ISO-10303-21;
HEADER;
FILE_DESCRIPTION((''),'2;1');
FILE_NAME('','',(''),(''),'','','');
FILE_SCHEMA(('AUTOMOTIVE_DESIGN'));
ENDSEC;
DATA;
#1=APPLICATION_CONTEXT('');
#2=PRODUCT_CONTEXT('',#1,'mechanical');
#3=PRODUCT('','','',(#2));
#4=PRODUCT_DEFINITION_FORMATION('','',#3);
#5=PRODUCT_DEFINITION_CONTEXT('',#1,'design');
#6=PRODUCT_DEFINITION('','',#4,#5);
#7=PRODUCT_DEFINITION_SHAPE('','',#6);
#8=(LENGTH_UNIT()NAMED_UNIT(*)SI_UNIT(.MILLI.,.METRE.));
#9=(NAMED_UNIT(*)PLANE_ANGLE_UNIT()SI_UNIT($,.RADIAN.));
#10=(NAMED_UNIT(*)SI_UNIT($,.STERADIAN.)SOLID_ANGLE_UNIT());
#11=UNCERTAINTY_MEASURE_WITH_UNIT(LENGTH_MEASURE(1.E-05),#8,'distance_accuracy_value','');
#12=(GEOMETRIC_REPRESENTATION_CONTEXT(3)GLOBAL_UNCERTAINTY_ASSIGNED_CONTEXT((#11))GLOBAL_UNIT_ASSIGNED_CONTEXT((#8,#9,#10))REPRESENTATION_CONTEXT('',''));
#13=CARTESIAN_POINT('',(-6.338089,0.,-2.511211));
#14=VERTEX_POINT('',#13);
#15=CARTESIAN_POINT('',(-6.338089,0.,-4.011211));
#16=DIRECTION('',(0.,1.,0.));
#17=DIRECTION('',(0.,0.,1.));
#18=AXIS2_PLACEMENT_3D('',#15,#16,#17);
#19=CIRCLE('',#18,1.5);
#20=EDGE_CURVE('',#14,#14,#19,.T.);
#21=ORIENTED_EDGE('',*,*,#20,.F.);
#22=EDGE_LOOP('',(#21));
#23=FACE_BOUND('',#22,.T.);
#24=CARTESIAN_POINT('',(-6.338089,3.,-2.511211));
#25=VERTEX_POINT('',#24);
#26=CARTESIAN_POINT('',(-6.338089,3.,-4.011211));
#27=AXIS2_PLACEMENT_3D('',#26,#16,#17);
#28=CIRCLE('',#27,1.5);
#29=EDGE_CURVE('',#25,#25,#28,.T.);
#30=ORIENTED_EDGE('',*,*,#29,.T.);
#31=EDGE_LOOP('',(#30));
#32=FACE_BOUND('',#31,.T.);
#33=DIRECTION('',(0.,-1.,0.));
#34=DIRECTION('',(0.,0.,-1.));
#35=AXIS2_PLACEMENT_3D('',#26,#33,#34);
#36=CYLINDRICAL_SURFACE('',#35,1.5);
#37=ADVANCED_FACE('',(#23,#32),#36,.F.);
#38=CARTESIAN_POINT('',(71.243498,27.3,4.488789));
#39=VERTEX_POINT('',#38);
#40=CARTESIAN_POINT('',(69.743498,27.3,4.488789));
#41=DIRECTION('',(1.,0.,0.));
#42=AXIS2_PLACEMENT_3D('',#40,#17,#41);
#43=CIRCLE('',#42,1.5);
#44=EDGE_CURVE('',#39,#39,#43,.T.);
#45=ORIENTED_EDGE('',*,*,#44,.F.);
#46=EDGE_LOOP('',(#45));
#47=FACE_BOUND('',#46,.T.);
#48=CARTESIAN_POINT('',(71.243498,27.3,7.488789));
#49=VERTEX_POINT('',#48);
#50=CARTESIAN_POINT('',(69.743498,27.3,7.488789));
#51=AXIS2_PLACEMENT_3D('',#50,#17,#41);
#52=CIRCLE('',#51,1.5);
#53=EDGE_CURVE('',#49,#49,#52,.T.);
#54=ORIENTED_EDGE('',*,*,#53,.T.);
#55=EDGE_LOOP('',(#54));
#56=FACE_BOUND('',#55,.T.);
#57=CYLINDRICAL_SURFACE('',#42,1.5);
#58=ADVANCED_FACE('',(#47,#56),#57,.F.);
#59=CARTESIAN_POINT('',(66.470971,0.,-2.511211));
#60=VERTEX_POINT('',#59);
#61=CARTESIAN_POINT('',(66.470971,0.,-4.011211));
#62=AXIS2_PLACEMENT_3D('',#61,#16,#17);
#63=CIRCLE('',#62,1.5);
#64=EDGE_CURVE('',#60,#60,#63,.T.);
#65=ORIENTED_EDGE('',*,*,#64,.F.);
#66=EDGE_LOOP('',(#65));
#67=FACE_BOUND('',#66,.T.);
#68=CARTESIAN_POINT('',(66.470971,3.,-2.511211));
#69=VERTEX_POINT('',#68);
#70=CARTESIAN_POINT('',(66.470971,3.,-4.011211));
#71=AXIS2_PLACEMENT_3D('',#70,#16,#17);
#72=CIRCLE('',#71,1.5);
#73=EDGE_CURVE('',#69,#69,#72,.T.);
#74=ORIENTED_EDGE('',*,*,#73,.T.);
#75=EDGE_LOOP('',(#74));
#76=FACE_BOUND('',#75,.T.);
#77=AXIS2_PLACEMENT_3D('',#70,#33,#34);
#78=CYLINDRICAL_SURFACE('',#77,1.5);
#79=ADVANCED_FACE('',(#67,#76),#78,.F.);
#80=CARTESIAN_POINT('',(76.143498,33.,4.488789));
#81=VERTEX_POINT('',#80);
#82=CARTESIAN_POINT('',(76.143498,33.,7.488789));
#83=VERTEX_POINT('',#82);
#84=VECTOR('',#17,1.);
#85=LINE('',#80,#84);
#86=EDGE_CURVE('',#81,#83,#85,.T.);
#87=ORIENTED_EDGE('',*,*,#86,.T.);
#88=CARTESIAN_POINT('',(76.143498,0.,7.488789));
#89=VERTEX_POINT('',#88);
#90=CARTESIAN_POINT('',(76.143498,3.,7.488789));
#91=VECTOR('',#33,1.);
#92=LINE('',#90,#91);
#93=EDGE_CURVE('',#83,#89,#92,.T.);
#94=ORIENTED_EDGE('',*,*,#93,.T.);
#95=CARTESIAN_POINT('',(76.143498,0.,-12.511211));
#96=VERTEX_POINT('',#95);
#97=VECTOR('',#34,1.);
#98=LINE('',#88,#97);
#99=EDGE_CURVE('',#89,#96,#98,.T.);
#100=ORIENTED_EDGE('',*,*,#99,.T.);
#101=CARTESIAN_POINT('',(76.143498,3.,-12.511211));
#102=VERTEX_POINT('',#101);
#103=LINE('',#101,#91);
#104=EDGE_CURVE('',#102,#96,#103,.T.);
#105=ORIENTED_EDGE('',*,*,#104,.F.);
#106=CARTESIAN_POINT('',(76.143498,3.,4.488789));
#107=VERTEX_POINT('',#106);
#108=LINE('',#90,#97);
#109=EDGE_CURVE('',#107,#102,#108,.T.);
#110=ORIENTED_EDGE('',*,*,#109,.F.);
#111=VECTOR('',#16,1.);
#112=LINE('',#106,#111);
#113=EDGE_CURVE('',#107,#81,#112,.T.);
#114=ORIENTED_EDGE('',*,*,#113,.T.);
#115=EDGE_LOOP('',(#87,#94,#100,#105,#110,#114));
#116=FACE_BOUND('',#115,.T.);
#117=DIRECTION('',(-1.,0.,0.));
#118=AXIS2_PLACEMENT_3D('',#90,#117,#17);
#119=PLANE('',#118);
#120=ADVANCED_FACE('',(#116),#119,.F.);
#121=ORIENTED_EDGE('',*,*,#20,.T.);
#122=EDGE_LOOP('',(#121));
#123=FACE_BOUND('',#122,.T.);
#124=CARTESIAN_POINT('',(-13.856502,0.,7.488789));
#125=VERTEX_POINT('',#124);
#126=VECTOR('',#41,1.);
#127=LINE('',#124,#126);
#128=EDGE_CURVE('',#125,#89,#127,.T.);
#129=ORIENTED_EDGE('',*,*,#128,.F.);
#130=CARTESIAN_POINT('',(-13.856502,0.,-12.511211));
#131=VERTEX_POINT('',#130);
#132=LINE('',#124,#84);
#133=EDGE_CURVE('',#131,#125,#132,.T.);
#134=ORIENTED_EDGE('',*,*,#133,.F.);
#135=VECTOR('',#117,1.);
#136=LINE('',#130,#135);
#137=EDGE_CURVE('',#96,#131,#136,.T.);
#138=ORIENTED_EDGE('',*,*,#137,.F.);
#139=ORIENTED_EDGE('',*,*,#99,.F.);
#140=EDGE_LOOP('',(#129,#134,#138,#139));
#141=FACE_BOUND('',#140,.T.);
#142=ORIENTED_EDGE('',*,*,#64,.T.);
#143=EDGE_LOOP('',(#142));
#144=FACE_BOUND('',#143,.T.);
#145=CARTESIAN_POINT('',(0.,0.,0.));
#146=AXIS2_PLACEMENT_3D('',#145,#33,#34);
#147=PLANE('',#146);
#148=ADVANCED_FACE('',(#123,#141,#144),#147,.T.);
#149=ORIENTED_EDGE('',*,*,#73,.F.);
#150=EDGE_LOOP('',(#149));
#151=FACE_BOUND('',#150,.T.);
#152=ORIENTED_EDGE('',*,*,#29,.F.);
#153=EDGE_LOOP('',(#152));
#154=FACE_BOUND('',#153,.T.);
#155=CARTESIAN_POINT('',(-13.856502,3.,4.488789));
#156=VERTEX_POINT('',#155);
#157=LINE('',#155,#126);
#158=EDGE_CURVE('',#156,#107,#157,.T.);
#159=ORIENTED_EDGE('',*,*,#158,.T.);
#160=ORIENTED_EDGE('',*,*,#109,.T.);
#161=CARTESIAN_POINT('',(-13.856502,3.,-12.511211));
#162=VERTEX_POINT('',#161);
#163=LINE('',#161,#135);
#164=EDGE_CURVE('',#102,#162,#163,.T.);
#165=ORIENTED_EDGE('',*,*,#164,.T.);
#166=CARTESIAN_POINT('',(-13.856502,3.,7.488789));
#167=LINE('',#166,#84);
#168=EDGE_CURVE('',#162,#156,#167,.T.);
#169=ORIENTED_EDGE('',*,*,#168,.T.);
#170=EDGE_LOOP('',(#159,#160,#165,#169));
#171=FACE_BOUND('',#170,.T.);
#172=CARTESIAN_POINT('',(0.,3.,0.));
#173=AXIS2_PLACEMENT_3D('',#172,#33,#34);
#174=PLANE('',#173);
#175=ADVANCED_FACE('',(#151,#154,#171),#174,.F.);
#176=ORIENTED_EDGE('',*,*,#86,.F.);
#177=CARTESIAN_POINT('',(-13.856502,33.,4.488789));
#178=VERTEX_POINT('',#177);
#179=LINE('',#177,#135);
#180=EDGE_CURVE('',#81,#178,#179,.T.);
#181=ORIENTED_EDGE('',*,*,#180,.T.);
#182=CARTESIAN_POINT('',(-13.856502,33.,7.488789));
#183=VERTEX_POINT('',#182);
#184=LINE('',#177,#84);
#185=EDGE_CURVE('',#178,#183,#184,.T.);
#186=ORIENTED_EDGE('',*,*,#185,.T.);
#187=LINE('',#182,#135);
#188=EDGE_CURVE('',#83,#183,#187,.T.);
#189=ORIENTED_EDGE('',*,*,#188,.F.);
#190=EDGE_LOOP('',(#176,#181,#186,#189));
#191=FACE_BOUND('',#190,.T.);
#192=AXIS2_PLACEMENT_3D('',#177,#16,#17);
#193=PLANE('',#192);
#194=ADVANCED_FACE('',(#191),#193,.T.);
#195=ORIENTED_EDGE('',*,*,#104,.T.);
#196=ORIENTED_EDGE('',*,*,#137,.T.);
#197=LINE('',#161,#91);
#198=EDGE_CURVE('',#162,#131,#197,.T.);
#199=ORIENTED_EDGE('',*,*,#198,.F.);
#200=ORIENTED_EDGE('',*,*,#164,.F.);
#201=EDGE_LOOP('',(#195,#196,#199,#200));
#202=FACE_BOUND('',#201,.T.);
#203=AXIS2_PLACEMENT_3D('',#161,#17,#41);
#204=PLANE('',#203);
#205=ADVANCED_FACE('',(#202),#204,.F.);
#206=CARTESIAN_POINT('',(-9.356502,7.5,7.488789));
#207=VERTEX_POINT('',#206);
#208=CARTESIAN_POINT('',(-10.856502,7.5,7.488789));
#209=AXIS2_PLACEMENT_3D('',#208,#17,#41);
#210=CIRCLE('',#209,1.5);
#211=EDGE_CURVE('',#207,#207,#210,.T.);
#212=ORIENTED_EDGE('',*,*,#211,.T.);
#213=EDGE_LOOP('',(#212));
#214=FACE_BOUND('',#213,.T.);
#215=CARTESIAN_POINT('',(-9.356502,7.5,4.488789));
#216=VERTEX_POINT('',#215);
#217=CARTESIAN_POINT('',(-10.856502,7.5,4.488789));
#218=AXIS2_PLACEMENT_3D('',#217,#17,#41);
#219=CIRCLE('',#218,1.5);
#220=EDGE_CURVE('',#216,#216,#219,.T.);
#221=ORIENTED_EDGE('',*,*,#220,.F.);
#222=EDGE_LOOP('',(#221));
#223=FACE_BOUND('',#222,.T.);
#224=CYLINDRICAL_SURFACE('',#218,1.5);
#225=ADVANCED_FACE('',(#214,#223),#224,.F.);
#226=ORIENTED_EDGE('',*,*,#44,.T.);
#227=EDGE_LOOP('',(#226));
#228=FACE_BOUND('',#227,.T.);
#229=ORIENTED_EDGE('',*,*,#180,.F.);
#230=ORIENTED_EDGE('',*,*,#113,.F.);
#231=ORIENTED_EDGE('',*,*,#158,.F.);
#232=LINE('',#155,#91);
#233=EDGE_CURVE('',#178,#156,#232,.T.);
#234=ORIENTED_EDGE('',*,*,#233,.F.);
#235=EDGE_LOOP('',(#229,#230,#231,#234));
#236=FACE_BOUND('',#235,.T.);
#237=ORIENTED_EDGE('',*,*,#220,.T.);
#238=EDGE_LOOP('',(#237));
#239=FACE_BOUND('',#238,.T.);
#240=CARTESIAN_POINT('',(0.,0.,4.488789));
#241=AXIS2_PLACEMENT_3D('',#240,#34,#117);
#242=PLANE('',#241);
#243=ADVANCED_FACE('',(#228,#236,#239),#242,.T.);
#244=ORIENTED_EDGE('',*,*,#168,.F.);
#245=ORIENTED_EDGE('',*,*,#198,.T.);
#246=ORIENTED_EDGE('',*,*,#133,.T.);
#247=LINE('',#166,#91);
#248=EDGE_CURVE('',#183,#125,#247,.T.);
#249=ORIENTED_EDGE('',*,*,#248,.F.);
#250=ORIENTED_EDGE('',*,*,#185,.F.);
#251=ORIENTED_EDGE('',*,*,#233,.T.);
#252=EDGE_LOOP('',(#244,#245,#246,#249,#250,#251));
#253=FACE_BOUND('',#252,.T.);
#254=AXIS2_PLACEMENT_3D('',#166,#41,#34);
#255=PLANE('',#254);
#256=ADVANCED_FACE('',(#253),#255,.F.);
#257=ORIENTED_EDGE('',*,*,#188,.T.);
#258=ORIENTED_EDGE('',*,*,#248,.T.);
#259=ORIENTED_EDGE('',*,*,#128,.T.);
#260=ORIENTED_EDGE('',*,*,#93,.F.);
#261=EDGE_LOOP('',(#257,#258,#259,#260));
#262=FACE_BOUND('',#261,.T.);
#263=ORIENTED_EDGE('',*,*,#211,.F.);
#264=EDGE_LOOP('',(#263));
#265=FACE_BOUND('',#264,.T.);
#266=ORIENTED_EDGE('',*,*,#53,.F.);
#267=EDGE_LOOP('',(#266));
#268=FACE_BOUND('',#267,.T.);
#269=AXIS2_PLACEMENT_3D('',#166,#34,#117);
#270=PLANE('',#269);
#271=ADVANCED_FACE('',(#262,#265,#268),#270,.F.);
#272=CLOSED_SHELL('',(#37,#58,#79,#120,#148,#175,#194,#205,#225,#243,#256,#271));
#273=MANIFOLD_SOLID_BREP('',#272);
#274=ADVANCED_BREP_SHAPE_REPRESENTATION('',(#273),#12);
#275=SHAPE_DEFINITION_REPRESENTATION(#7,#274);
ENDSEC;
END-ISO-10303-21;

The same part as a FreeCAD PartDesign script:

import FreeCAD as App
import Part
import Sketcher
Q = App.Units.Quantity

doc = App.newDocument("Part")
params = doc.addObject("Spreadsheet::Sheet", "Params")
for row, (alias, value) in enumerate([
    ("sketch1_diameter", "3 mm"),
    ("sketch1_width", "90 mm"),
    ("sketch1_height", "20 mm"),
    ("pad1_length", "3 mm"),
    ("sketch2_diameter", "3 mm"),
    ("sketch2_width", "90 mm"),
    ("sketch2_height", "30 mm"),
    ("pad2_length", "3 mm"),
], start=1):
    params.set(f"A{row}", alias)
    params.set(f"B{row}", "=" + value)
    params.setAlias(f"B{row}", alias)

body = doc.addObject("PartDesign::Body", "Body")

sketch1 = doc.addObject("Sketcher::SketchObject", "Sketch")
body.addObject(sketch1)
sketch1.AttachmentSupport = (doc.XZ_Plane, [""])
sketch1.MapMode = "FlatFace"
sketch1.addGeometry(Part.LineSegment(App.Vector(-13.9, -12.5, 0), App.Vector(-13.9, 7.5, 0)), False)
sketch1.addGeometry(Part.LineSegment(App.Vector(-13.9, 7.5, 0), App.Vector(76.1, 7.5, 0)), False)
sketch1.addGeometry(Part.LineSegment(App.Vector(76.1, 7.5, 0), App.Vector(76.1, -12.5, 0)), False)
sketch1.addGeometry(Part.LineSegment(App.Vector(76.1, -12.5, 0), App.Vector(-13.9, -12.5, 0)), False)
sketch1.addGeometry(Part.Circle(App.Vector(-6.3, -4, 0), App.Vector(0, 0, 1), 1.5), False)
sketch1.addGeometry(Part.Circle(App.Vector(66.5, -4, 0), App.Vector(0, 0, 1), 1.5), False)
sketch1.addConstraint(Sketcher.Constraint("Coincident", 0, 2, 1, 1))
sketch1.addConstraint(Sketcher.Constraint("Coincident", 1, 2, 2, 1))
sketch1.addConstraint(Sketcher.Constraint("Coincident", 2, 2, 3, 1))
sketch1.addConstraint(Sketcher.Constraint("Coincident", 3, 2, 0, 1))
sketch1.addConstraint(Sketcher.Constraint("Vertical", 0))
sketch1.addConstraint(Sketcher.Constraint("Horizontal", 1))
sketch1.addConstraint(Sketcher.Constraint("Vertical", 2))
sketch1.addConstraint(Sketcher.Constraint("Horizontal", 3))
sketch1.addConstraint(Sketcher.Constraint("Equal", 4, 5))
sketch1.addConstraint(Sketcher.Constraint("Horizontal", 4, 3, 5, 3))
sketch1.addConstraint(Sketcher.Constraint("Diameter", 4, Q("3 mm")))
sketch1.addConstraint(Sketcher.Constraint("DistanceX", 1, 1, 1, 2, Q("90 mm")))
sketch1.addConstraint(Sketcher.Constraint("DistanceY", 0, 1, 0, 2, Q("20 mm")))
sketch1.addConstraint(Sketcher.Constraint("DistanceY", 4, 3, 0, 2, Q("11.5 mm")))
sketch1.addConstraint(Sketcher.Constraint("DistanceX", 4, 3, -1, 1, Q("6.338089 mm")))
sketch1.addConstraint(Sketcher.Constraint("DistanceY", 4, 3, -1, 1, Q("4.011211 mm")))
sketch1.addConstraint(Sketcher.Constraint("DistanceX", -1, 1, 5, 3, Q("66.470971 mm")))
sketch1.addConstraint(Sketcher.Constraint("DistanceX", 0, 2, -1, 1, Q("13.856502 mm")))
sketch1.setExpression("Constraints[10]", "Params.sketch1_diameter")
sketch1.setExpression("Constraints[11]", "Params.sketch1_width")
sketch1.setExpression("Constraints[12]", "Params.sketch1_height")
pad1 = doc.addObject("PartDesign::Pad", "Pad")
body.addObject(pad1)
pad1.Profile = sketch1
pad1.setExpression("Length", "Params.pad1_length")
pad1.Reversed = True

sketch2 = doc.addObject("Sketcher::SketchObject", "Sketch001")
body.addObject(sketch2)
sketch2.AttachmentSupport = (doc.XY_Plane, [""])
sketch2.MapMode = "FlatFace"
sketch2.AttachmentOffset = App.Placement(App.Vector(0, 0, 7.488789), App.Rotation())
sketch2.addGeometry(Part.LineSegment(App.Vector(-13.9, 33, 0), App.Vector(-13.9, 3, 0)), False)
sketch2.addGeometry(Part.LineSegment(App.Vector(-13.9, 3, 0), App.Vector(76.1, 3, 0)), False)
sketch2.addGeometry(Part.LineSegment(App.Vector(76.1, 3, 0), App.Vector(76.1, 33, 0)), False)
sketch2.addGeometry(Part.LineSegment(App.Vector(76.1, 33, 0), App.Vector(-13.9, 33, 0)), False)
sketch2.addGeometry(Part.Circle(App.Vector(-10.9, 7.5, 0), App.Vector(0, 0, 1), 1.5), False)
sketch2.addGeometry(Part.Circle(App.Vector(69.7, 27.3, 0), App.Vector(0, 0, 1), 1.5), False)
sketch2.addConstraint(Sketcher.Constraint("Coincident", 0, 2, 1, 1))
sketch2.addConstraint(Sketcher.Constraint("Coincident", 1, 2, 2, 1))
sketch2.addConstraint(Sketcher.Constraint("Coincident", 2, 2, 3, 1))
sketch2.addConstraint(Sketcher.Constraint("Coincident", 3, 2, 0, 1))
sketch2.addConstraint(Sketcher.Constraint("Vertical", 0))
sketch2.addConstraint(Sketcher.Constraint("Horizontal", 1))
sketch2.addConstraint(Sketcher.Constraint("Vertical", 2))
sketch2.addConstraint(Sketcher.Constraint("Horizontal", 3))
sketch2.addConstraint(Sketcher.Constraint("Equal", 4, 5))
sketch2.addConstraint(Sketcher.Constraint("Diameter", 4, Q("3 mm")))
sketch2.addConstraint(Sketcher.Constraint("DistanceX", 1, 1, 1, 2, Q("90 mm")))
sketch2.addConstraint(Sketcher.Constraint("DistanceY", 0, 2, 0, 1, Q("30 mm")))
sketch2.addConstraint(Sketcher.Constraint("DistanceY", -1, 1, 0, 2, Q("3 mm")))
sketch2.addConstraint(Sketcher.Constraint("DistanceX", 0, 2, 4, 3, Q("3 mm")))
sketch2.addConstraint(Sketcher.Constraint("DistanceY", -1, 1, 4, 3, Q("7.5 mm")))
sketch2.addConstraint(Sketcher.Constraint("DistanceY", -1, 1, 5, 3, Q("27.3 mm")))
sketch2.addConstraint(Sketcher.Constraint("DistanceX", 4, 3, 5, 3, Q("80.6 mm")))
sketch2.addConstraint(Sketcher.Constraint("DistanceX", 4, 3, -1, 1, Q("10.856502 mm")))
sketch2.setExpression("Constraints[9]", "Params.sketch2_diameter")
sketch2.setExpression("Constraints[10]", "Params.sketch2_width")
sketch2.setExpression("Constraints[11]", "Params.sketch2_height")
pad2 = doc.addObject("PartDesign::Pad", "Pad001")
body.addObject(pad2)
pad2.Profile = sketch2
pad2.setExpression("Length", "Params.pad2_length")
pad2.Reversed = True

doc.recompute()
